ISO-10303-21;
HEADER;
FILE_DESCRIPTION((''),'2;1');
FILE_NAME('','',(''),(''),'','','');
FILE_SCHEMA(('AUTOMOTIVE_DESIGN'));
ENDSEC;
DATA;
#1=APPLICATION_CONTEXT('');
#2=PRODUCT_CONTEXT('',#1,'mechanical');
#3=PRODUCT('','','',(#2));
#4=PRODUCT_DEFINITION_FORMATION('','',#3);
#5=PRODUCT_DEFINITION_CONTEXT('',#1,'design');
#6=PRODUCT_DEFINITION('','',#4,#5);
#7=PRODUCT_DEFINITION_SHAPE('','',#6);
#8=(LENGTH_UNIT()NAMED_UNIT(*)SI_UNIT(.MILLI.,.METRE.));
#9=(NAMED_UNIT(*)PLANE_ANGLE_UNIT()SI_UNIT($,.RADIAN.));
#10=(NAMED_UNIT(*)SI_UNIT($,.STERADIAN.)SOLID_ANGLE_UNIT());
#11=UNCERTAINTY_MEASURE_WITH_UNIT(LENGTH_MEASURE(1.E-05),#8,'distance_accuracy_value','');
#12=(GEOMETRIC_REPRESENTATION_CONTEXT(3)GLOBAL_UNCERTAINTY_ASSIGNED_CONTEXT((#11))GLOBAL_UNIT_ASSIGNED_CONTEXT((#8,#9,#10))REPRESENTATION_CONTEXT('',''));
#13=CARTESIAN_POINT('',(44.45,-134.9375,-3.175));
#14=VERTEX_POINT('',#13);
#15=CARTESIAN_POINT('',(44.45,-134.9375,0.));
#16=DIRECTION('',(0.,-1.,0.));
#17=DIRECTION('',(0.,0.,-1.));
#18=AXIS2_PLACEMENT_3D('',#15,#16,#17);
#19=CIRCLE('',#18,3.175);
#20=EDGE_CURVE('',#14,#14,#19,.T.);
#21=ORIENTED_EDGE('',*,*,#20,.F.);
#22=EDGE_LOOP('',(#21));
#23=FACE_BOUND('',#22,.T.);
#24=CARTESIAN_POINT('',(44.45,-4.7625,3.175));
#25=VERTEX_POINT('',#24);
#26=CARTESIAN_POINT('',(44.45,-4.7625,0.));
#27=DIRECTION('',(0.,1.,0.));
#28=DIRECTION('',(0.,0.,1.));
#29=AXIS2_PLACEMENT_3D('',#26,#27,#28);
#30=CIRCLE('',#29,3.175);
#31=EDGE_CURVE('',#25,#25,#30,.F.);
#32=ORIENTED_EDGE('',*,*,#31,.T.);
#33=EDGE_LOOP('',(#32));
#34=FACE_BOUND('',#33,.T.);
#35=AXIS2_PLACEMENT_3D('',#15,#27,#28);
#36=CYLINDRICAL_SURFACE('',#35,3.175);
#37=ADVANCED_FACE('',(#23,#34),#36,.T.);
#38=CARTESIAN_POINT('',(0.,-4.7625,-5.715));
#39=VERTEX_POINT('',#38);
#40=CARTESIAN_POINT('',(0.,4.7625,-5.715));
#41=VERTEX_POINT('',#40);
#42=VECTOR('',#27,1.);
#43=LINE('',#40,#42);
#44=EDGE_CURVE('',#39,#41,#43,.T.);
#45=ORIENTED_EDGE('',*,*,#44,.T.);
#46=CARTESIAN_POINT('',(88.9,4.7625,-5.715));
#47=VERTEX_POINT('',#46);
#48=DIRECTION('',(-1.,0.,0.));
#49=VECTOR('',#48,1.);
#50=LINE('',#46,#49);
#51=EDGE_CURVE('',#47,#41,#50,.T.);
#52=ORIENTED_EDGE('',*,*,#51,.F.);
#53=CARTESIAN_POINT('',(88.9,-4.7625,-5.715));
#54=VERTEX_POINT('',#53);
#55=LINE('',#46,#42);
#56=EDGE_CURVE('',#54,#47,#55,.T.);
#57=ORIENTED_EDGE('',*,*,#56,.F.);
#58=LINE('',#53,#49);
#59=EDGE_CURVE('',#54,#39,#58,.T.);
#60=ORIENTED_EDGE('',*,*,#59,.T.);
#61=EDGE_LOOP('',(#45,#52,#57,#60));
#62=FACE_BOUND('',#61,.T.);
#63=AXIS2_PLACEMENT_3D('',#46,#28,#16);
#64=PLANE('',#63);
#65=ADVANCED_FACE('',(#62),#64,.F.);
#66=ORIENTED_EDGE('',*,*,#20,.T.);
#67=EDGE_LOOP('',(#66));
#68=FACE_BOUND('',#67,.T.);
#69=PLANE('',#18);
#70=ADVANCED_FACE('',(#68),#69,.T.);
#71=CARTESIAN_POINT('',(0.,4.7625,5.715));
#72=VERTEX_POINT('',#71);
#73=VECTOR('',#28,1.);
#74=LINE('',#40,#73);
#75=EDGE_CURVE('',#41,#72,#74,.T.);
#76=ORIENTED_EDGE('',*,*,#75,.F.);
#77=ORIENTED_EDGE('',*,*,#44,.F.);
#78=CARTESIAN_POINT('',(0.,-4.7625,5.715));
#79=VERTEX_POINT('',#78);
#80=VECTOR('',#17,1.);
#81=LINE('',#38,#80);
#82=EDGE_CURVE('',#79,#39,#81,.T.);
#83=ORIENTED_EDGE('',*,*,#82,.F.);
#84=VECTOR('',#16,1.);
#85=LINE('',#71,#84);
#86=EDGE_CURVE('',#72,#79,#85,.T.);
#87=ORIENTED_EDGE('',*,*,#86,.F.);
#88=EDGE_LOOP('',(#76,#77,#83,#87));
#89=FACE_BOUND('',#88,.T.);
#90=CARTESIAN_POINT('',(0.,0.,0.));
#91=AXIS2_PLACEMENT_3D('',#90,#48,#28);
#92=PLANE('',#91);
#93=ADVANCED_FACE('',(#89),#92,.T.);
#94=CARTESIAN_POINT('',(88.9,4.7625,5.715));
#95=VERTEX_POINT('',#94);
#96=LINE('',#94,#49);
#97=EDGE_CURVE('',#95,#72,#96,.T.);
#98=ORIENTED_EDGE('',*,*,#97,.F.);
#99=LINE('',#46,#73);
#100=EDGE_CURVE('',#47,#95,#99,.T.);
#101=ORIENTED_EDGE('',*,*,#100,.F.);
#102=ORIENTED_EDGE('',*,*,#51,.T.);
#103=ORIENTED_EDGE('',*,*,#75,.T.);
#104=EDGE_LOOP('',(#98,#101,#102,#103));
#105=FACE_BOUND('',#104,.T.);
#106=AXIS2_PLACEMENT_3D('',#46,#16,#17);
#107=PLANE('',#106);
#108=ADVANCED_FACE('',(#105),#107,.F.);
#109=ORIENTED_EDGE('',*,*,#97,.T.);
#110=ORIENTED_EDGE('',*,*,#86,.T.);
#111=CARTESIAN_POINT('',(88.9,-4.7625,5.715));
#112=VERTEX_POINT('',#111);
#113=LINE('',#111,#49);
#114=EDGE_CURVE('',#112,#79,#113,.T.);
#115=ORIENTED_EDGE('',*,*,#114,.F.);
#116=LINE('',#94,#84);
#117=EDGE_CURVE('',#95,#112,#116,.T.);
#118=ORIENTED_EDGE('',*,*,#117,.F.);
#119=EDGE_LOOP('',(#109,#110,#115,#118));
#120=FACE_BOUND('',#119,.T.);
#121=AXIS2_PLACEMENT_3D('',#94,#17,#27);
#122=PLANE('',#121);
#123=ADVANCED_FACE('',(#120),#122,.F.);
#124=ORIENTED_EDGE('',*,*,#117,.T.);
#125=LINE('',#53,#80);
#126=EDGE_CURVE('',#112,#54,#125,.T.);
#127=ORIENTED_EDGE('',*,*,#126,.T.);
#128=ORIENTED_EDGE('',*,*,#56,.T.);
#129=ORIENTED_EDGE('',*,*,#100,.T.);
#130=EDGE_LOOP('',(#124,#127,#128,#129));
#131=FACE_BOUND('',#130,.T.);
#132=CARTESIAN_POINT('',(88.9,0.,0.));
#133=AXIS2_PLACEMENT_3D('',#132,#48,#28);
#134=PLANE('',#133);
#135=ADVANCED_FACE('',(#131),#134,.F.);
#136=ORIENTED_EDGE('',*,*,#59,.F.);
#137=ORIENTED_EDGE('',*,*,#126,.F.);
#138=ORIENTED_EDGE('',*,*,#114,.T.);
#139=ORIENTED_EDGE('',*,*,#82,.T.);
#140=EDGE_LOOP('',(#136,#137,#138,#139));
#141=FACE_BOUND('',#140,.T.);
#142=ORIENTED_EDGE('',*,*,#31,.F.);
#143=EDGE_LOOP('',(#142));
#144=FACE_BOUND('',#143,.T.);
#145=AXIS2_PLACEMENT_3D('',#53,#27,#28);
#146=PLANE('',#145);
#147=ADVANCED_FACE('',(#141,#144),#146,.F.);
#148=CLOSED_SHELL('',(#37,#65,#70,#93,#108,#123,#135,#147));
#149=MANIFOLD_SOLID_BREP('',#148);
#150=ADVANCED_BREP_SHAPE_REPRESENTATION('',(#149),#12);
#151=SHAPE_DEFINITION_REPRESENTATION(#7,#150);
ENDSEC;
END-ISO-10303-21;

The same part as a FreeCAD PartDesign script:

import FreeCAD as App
import Part
import Sketcher
Q = App.Units.Quantity

doc = App.newDocument("Part")
body = doc.addObject("PartDesign::Body", "Body")

# Sketch on YZ plane
sketch1 = doc.addObject("Sketcher::SketchObject", "Sketch")
body.addObject(sketch1)
sketch1.AttachmentSupport = (doc.YZ_Plane, [""])
sketch1.MapMode = "FlatFace"
sketch1.addGeometry(Part.LineSegment(App.Vector(4.7625, 5.715, 0), App.Vector(-4.7625, 5.715, 0)), False)
sketch1.addGeometry(Part.LineSegment(App.Vector(-4.7625, 5.715, 0), App.Vector(-4.7625, -5.715, 0)), False)
sketch1.addGeometry(Part.LineSegment(App.Vector(-4.7625, -5.715, 0), App.Vector(4.7625, -5.715, 0)), False)
sketch1.addGeometry(Part.LineSegment(App.Vector(4.7625, -5.715, 0), App.Vector(4.7625, 5.715, 0)), False)
sketch1.addConstraint(Sketcher.Constraint("Coincident", 0, 2, 1, 1))
sketch1.addConstraint(Sketcher.Constraint("Coincident", 1, 2, 2, 1))
sketch1.addConstraint(Sketcher.Constraint("Coincident", 2, 2, 3, 1))
sketch1.addConstraint(Sketcher.Constraint("Coincident", 3, 2, 0, 1))
sketch1.addConstraint(Sketcher.Constraint("Horizontal", 0))
sketch1.addConstraint(Sketcher.Constraint("Vertical", 1))
sketch1.addConstraint(Sketcher.Constraint("Horizontal", 2))
sketch1.addConstraint(Sketcher.Constraint("Vertical", 3))
sketch1.addConstraint(Sketcher.Constraint("Symmetric", 0, 2, 2, 2, -1, 1))
sketch1.addConstraint(Sketcher.Constraint("DistanceY", 1, 2, 1, 1, Q("0.45 in")))
sketch1.addConstraint(Sketcher.Constraint("DistanceX", 0, 2, 0, 1, Q("0.375 in")))
pad1 = doc.addObject("PartDesign::Pad", "Pad")
body.addObject(pad1)
pad1.Profile = sketch1
pad1.Length = Q("3.5 in")

# Sketch on XZ plane
sketch2 = doc.addObject("Sketcher::SketchObject", "Sketch001")
body.addObject(sketch2)
sketch2.AttachmentSupport = (doc.XZ_Plane, [""])
sketch2.MapMode = "FlatFace"
sketch2.AttachmentOffset = App.Placement(App.Vector(0, 0, 0.1875 * 25.4), App.Rotation())
sketch2.addGeometry(Part.Circle(App.Vector(44.45, 0, 0), App.Vector(0, 0, 1), 3.175), False)
sketch2.addConstraint(Sketcher.Constraint("PointOnObject", 0, 3, -1))
sketch2.addConstraint(Sketcher.Constraint("Diameter", 0, Q("0.25 in")))
sketch2.addConstraint(Sketcher.Constraint("DistanceX", -1, 1, 0, 3, Q("1.75 in")))
pad2 = doc.addObject("PartDesign::Pad", "Pad001")
body.addObject(pad2)
pad2.Profile = sketch2
pad2.Length = Q("5.125 in")

doc.recompute()
